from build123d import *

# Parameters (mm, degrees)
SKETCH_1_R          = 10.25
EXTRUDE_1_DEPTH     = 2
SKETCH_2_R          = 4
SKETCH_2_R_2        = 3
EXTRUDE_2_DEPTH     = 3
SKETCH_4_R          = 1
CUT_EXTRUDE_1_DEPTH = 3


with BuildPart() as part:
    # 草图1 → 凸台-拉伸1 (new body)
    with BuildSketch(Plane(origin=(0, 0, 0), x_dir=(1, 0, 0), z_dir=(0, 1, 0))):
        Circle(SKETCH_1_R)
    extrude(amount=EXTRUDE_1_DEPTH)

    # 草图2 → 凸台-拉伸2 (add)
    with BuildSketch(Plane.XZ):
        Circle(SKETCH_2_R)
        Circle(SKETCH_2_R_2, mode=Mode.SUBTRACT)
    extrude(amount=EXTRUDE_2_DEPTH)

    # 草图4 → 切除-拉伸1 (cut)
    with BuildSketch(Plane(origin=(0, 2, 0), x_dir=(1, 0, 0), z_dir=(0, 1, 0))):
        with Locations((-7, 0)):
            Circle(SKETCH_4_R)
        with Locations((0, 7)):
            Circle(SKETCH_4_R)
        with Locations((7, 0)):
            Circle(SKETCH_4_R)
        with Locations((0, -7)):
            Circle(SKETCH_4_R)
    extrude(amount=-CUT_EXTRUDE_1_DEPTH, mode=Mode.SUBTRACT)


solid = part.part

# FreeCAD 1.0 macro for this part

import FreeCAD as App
import Part
import Sketcher
from FreeCAD import Vector

doc = App.newDocument("Part")
params = doc.addObject("Spreadsheet::Sheet", "Params")
for row, (alias, value) in enumerate([
    ("sketch1_diameter", "20.5 mm"),
    ("pad1_length", "2 mm"),
    ("sketch2_diameter", "8 mm"),
    ("sketch2_diameter2", "6 mm"),
    ("pad2_length", "3 mm"),
    ("sketch3_diameter", "2 mm"),
    ("pocket1_length", "3 mm"),
], start=1):
    params.set(f"A{row}", alias)
    params.set(f"B{row}", "=" + value)
    params.setAlias(f"B{row}", alias)

body = doc.addObject("PartDesign::Body", "Body")

# Sketch on XZ plane
sketch1 = body.newObject("Sketcher::SketchObject", "Sketch")
sketch1.AttachmentSupport = (doc.getObject("XZ_Plane"), [""])
sketch1.MapMode = "FlatFace"
sketch1.addGeometry(Part.Circle(Vector(0, 0, 0), Vector(0, 0, 1), 10), False)
sketch1.addConstraint([
    Sketcher.Constraint("Coincident", 0, 3, -1, 1),
    Sketcher.Constraint("Diameter", 0, 20.5),
])
sketch1.setExpression("Constraints[1]", "Params.sketch1_diameter")
pad1 = body.newObject("PartDesign::Pad", "Pad")
pad1.Profile = sketch1
pad1.setExpression("Length", "Params.pad1_length")
pad1.Reversed = True

# Sketch on XZ plane
sketch2 = body.newObject("Sketcher::SketchObject", "Sketch001")
sketch2.AttachmentSupport = (doc.getObject("XZ_Plane"), [""])
sketch2.MapMode = "FlatFace"
sketch2.addGeometry([
    Part.Circle(Vector(0, 0, 0), Vector(0, 0, 1), 4),
    Part.Circle(Vector(0, 0, 0), Vector(0, 0, 1), 3),
], False)
sketch2.addConstraint([
    Sketcher.Constraint("Coincident", 0, 3, -1, 1),
    Sketcher.Constraint("Coincident", 1, 3, -1, 1),
    Sketcher.Constraint("Diameter", 0, 8.0),
    Sketcher.Constraint("Diameter", 1, 6.0),
])
sketch2.setExpression("Constraints[2]", "Params.sketch2_diameter")
sketch2.setExpression("Constraints[3]", "Params.sketch2_diameter2")
pad2 = body.newObject("PartDesign::Pad", "Pad001")
pad2.Profile = sketch2
pad2.setExpression("Length", "Params.pad2_length")

# Sketch on XZ plane
sketch3 = body.newObject("Sketcher::SketchObject", "Sketch002")
sketch3.AttachmentSupport = (doc.getObject("XZ_Plane"), [""])
sketch3.MapMode = "FlatFace"
sketch3.AttachmentOffset = App.Placement(Vector(0, 0, -2), App.Rotation())
sketch3.addGeometry([
    Part.Circle(Vector(-7, 0, 0), Vector(0, 0, 1), 1),
    Part.Circle(Vector(0, -7, 0), Vector(0, 0, 1), 1),
    Part.Circle(Vector(7, 0, 0), Vector(0, 0, 1), 1),
    Part.Circle(Vector(0, 7, 0), Vector(0, 0, 1), 1),
], False)
sketch3.addConstraint([
    Sketcher.Constraint("Equal", 0, 1),
    Sketcher.Constraint("Equal", 1, 2),
    Sketcher.Constraint("Equal", 2, 3),
    Sketcher.Constraint("Symmetric", 0, 3, 2, 3, -1, 1),
    Sketcher.Constraint("Symmetric", 1, 3, 3, 3, -1, 1),
    Sketcher.Constraint("PointOnObject", 0, 3, -1),
    Sketcher.Constraint("PointOnObject", 1, 3, -2),
    Sketcher.Constraint("Diameter", 0, 2.0),
    Sketcher.Constraint("DistanceX", 0, 3, -1, 1, 7.0),
    Sketcher.Constraint("DistanceY", 1, 3, -1, 1, 7.0),
])
sketch3.setExpression("Constraints[7]", "Params.sketch3_diameter")
pocket1 = body.newObject("PartDesign::Pocket", "Pocket")
pocket1.Profile = sketch3
pocket1.setExpression("Length", "Params.pocket1_length")
pocket1.Reversed = True

doc.recompute()
